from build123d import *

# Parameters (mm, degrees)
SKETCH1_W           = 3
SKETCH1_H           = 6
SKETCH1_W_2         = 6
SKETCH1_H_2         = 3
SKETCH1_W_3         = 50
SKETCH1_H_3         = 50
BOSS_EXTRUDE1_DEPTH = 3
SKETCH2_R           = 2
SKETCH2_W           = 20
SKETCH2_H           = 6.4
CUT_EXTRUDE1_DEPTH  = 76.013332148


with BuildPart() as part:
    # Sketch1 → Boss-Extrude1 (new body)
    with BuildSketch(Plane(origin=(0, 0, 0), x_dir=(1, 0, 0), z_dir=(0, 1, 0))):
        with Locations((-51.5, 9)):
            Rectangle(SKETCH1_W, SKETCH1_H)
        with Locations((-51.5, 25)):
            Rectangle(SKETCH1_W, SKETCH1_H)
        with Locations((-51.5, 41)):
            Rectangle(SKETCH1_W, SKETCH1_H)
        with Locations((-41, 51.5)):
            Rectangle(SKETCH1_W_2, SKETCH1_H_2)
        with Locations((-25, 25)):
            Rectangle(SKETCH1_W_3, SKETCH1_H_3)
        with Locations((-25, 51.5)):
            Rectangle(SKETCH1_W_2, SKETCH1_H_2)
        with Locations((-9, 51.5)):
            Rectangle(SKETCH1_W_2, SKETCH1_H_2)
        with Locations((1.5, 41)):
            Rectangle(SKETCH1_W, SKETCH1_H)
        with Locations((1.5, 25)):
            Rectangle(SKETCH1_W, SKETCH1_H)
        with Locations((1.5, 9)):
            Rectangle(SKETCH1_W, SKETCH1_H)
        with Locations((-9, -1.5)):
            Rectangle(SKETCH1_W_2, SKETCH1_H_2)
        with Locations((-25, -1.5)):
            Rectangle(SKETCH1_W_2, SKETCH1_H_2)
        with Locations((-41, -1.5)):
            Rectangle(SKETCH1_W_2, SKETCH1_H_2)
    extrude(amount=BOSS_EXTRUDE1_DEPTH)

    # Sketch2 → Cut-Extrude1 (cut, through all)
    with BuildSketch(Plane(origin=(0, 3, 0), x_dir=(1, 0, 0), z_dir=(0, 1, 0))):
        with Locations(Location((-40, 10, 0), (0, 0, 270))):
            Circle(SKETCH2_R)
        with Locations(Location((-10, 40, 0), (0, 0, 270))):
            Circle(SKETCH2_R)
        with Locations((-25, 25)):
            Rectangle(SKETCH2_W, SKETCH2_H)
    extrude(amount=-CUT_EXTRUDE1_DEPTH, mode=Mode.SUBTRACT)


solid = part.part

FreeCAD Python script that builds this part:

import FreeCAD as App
import Part
import Sketcher
from FreeCAD import Vector
Q = App.Units.Quantity


def add_polygon(sketch, points):
    """Adds a closed chain of lines whose ends are joined by coincident constraints."""
    first, n = sketch.GeometryCount, len(points)
    for a, b in zip(points, points[1:] + points[:1]):
        sketch.addGeometry(Part.LineSegment(App.Vector(*a, 0), App.Vector(*b, 0)), False)
    for i in range(n):
        sketch.addConstraint(Sketcher.Constraint("Coincident", first + i, 2, first + (i + 1) % n, 1))

doc = App.newDocument("Part")
body = doc.addObject("PartDesign::Body", "Body")

# Sketch on XZ plane
sketch1 = body.newObject("Sketcher::SketchObject", "Sketch")
sketch1.AttachmentSupport = (doc.getObject("XZ_Plane"), [""])
sketch1.MapMode = "FlatFace"
add_polygon(sketch1, [(-53, -12), (-53, -6), (-50, -6), (-50, 0), (-44, 0), (-44, 3), (-38, 3), (-38, 0), (-28, 0), (-28, 3), (-22, 3), (-22, 0), (-12, 0), (-12, 3), (-6, 3), (-6, 0), (0, 0), (0, -6), (3, -6), (3, -12), (0, -12), (0, -22), (3, -22), (3, -28), (0, -28), (0, -38), (3, -38), (3, -44), (0, -44), (0, -50), (-6, -50), (-6, -53), (-12, -53), (-12, -50), (-22, -50), (-22, -53), (-28, -53), (-28, -50), (-38, -50), (-38, -53), (-44, -53), (-44, -50), (-50, -50), (-50, -44), (-53, -44), (-53, -38), (-50, -38), (-50, -28), (-53, -28), (-53, -22), (-50, -22), (-50, -12)])  # lines 0-51
sketch1.addConstraint([
    Sketcher.Constraint("Vertical", 0),
    Sketcher.Constraint("Horizontal", 1),
    Sketcher.Constraint("Vertical", 2),
    Sketcher.Constraint("Horizontal", 3),
    Sketcher.Constraint("Vertical", 4),
    Sketcher.Constraint("Horizontal", 5),
    Sketcher.Constraint("Vertical", 6),
    Sketcher.Constraint("Horizontal", 7),
    Sketcher.Constraint("Vertical", 8),
    Sketcher.Constraint("Horizontal", 9),
    Sketcher.Constraint("Vertical", 10),
    Sketcher.Constraint("Horizontal", 11),
    Sketcher.Constraint("Vertical", 12),
    Sketcher.Constraint("Horizontal", 13),
    Sketcher.Constraint("Vertical", 14),
    Sketcher.Constraint("Horizontal", 15),
    Sketcher.Constraint("Vertical", 16),
    Sketcher.Constraint("Horizontal", 17),
    Sketcher.Constraint("Vertical", 18),
    Sketcher.Constraint("Horizontal", 19),
    Sketcher.Constraint("Vertical", 20),
    Sketcher.Constraint("Horizontal", 21),
    Sketcher.Constraint("Vertical", 22),
    Sketcher.Constraint("Horizontal", 23),
    Sketcher.Constraint("Vertical", 24),
    Sketcher.Constraint("Horizontal", 25),
    Sketcher.Constraint("Vertical", 26),
    Sketcher.Constraint("Horizontal", 27),
    Sketcher.Constraint("Vertical", 28),
    Sketcher.Constraint("Horizontal", 29),
    Sketcher.Constraint("Vertical", 30),
    Sketcher.Constraint("Horizontal", 31),
    Sketcher.Constraint("Vertical", 32),
    Sketcher.Constraint("Horizontal", 33),
    Sketcher.Constraint("Vertical", 34),
    Sketcher.Constraint("Horizontal", 35),
    Sketcher.Constraint("Vertical", 36),
    Sketcher.Constraint("Horizontal", 37),
    Sketcher.Constraint("Vertical", 38),
    Sketcher.Constraint("Horizontal", 39),
    Sketcher.Constraint("Vertical", 40),
    Sketcher.Constraint("Horizontal", 41),
    Sketcher.Constraint("Vertical", 42),
    Sketcher.Constraint("Horizontal", 43),
    Sketcher.Constraint("Vertical", 44),
    Sketcher.Constraint("Horizontal", 45),
    Sketcher.Constraint("Vertical", 46),
    Sketcher.Constraint("Horizontal", 47),
    Sketcher.Constraint("Vertical", 48),
    Sketcher.Constraint("Horizontal", 49),
    Sketcher.Constraint("Vertical", 50),
    Sketcher.Constraint("Horizontal", 51),
    Sketcher.Constraint("Coincident", 15, 2, -1, 1),
    Sketcher.Constraint("PointOnObject", 2, 2, -1),
    Sketcher.Constraint("PointOnObject", 6, 2, -1),
    Sketcher.Constraint("PointOnObject", 10, 2, -1),
    Sketcher.Constraint("PointOnObject", 19, 2, -2),
    Sketcher.Constraint("PointOnObject", 23, 2, -2),
    Sketcher.Constraint("PointOnObject", 27, 2, -2),
    Sketcher.Constraint("Horizontal", 5, 2, 8, 2),
    Sketcher.Constraint("Horizontal", 9, 2, 12, 2),
    Sketcher.Constraint("Horizontal", 1, 2, 16, 2),
    Sketcher.Constraint("Horizontal", 29, 2, 32, 2),
    Sketcher.Constraint("Horizontal", 31, 2, 34, 2),
    Sketcher.Constraint("Horizontal", 33, 2, 36, 2),
    Sketcher.Constraint("Horizontal", 35, 2, 38, 2),
    Sketcher.Constraint("Horizontal", 37, 2, 40, 2),
    Sketcher.Constraint("Horizontal", 27, 2, 42, 2),
    Sketcher.Constraint("Horizontal", 25, 2, 44, 2),
    Sketcher.Constraint("Horizontal", 23, 2, 46, 2),
    Sketcher.Constraint("Horizontal", 21, 2, 48, 2),
    Sketcher.Constraint("Horizontal", 19, 2, 50, 2),
    Sketcher.Constraint("Vertical", 18, 2, 21, 2),
    Sketcher.Constraint("Vertical", 22, 2, 25, 2),
    Sketcher.Constraint("Vertical", 14, 2, 29, 2),
    Sketcher.Constraint("Vertical", 12, 2, 31, 2),
    Sketcher.Constraint("Vertical", 10, 2, 33, 2),
    Sketcher.Constraint("Vertical", 8, 2, 35, 2),
    Sketcher.Constraint("Vertical", 6, 2, 37, 2),
    Sketcher.Constraint("Vertical", 4, 2, 39, 2),
    Sketcher.Constraint("Vertical", 2, 2, 41, 2),
    Sketcher.Constraint("Vertical", 0, 2, 43, 2),
    Sketcher.Constraint("Vertical", 42, 2, 45, 2),
    Sketcher.Constraint("Vertical", 44, 2, 47, 2),
    Sketcher.Constraint("Vertical", 46, 2, 49, 2),
    Sketcher.Constraint("Equal", 3, 5),
    Sketcher.Constraint("Equal", 5, 9),
    Sketcher.Constraint("Equal", 7, 11),
    Sketcher.Constraint("Equal", 9, 13),
    Sketcher.Constraint("Equal", 13, 15),
    Sketcher.Constraint("Equal", 1, 17),
    Sketcher.Constraint("Equal", 41, 0),
    Sketcher.Constraint("Equal", 0, 2),
    Sketcher.Constraint("Equal", 51, 4),
    Sketcher.Constraint("Equal", 37, 20),
    Sketcher.Constraint("Equal", 18, 22),
    Sketcher.Constraint("Equal", 20, 24),
    Sketcher.Constraint("Equal", 22, 26),
    Sketcher.Constraint("Equal", 26, 28),
    Sketcher.Constraint("Equal", 14, 30),
    Sketcher.Constraint("DistanceX", 1, 1, 1, 2, Q("3 mm")),
    Sketcher.Constraint("DistanceX", 3, 1, 3, 2, Q("6 mm")),
    Sketcher.Constraint("DistanceX", 7, 1, 7, 2, Q("10 mm")),
])
pad1 = body.newObject("PartDesign::Pad", "Pad")
pad1.Profile = sketch1
pad1.Length = 3
pad1.Reversed = True

# Sketch on XZ plane
sketch2 = body.newObject("Sketcher::SketchObject", "Sketch001")
sketch2.AttachmentSupport = (doc.getObject("XZ_Plane"), [""])
sketch2.MapMode = "FlatFace"
sketch2.AttachmentOffset = App.Placement(Vector(0, 0, -3), App.Rotation())
sketch2.addGeometry(Part.Circle(Vector(-40, -10, 0), Vector(0, 0, 1), 2), False)  # 0
sketch2.addGeometry(Part.Circle(Vector(-10, -40, 0), Vector(0, 0, 1), 2), False)  # 1
add_polygon(sketch2, [(-35, -28.2), (-35, -21.8), (-15, -21.8), (-15, -28.2)])  # lines 2-5
sketch2.addConstraint([
    Sketcher.Constraint("Vertical", 2),
    Sketcher.Constraint("Horizontal", 3),
    Sketcher.Constraint("Vertical", 4),
    Sketcher.Constraint("Horizontal", 5),
    Sketcher.Constraint("Equal", 0, 1),
    Sketcher.Constraint("Diameter", 0, Q("4 mm")),
    Sketcher.Constraint("DistanceX", 3, 1, 3, 2, Q("20 mm")),
    Sketcher.Constraint("DistanceY", 2, 1, 2, 2, Q("6.4 mm")),
    Sketcher.Constraint("DistanceX", 0, 3, -1, 1, Q("40 mm")),
    Sketcher.Constraint("DistanceY", 0, 3, -1, 1, Q("10 mm")),
    Sketcher.Constraint("DistanceX", 1, 3, -1, 1, Q("10 mm")),
    Sketcher.Constraint("DistanceY", 1, 3, -1, 1, Q("40 mm")),
    Sketcher.Constraint("DistanceX", 2, 2, -1, 1, Q("35 mm")),
    Sketcher.Constraint("DistanceY", 2, 2, -1, 1, Q("21.8 mm")),
])
pocket1 = body.newObject("PartDesign::Pocket", "Pocket")
pocket1.Profile = sketch2
pocket1.Type = "ThroughAll"
pocket1.Reversed = True

doc.recompute()
